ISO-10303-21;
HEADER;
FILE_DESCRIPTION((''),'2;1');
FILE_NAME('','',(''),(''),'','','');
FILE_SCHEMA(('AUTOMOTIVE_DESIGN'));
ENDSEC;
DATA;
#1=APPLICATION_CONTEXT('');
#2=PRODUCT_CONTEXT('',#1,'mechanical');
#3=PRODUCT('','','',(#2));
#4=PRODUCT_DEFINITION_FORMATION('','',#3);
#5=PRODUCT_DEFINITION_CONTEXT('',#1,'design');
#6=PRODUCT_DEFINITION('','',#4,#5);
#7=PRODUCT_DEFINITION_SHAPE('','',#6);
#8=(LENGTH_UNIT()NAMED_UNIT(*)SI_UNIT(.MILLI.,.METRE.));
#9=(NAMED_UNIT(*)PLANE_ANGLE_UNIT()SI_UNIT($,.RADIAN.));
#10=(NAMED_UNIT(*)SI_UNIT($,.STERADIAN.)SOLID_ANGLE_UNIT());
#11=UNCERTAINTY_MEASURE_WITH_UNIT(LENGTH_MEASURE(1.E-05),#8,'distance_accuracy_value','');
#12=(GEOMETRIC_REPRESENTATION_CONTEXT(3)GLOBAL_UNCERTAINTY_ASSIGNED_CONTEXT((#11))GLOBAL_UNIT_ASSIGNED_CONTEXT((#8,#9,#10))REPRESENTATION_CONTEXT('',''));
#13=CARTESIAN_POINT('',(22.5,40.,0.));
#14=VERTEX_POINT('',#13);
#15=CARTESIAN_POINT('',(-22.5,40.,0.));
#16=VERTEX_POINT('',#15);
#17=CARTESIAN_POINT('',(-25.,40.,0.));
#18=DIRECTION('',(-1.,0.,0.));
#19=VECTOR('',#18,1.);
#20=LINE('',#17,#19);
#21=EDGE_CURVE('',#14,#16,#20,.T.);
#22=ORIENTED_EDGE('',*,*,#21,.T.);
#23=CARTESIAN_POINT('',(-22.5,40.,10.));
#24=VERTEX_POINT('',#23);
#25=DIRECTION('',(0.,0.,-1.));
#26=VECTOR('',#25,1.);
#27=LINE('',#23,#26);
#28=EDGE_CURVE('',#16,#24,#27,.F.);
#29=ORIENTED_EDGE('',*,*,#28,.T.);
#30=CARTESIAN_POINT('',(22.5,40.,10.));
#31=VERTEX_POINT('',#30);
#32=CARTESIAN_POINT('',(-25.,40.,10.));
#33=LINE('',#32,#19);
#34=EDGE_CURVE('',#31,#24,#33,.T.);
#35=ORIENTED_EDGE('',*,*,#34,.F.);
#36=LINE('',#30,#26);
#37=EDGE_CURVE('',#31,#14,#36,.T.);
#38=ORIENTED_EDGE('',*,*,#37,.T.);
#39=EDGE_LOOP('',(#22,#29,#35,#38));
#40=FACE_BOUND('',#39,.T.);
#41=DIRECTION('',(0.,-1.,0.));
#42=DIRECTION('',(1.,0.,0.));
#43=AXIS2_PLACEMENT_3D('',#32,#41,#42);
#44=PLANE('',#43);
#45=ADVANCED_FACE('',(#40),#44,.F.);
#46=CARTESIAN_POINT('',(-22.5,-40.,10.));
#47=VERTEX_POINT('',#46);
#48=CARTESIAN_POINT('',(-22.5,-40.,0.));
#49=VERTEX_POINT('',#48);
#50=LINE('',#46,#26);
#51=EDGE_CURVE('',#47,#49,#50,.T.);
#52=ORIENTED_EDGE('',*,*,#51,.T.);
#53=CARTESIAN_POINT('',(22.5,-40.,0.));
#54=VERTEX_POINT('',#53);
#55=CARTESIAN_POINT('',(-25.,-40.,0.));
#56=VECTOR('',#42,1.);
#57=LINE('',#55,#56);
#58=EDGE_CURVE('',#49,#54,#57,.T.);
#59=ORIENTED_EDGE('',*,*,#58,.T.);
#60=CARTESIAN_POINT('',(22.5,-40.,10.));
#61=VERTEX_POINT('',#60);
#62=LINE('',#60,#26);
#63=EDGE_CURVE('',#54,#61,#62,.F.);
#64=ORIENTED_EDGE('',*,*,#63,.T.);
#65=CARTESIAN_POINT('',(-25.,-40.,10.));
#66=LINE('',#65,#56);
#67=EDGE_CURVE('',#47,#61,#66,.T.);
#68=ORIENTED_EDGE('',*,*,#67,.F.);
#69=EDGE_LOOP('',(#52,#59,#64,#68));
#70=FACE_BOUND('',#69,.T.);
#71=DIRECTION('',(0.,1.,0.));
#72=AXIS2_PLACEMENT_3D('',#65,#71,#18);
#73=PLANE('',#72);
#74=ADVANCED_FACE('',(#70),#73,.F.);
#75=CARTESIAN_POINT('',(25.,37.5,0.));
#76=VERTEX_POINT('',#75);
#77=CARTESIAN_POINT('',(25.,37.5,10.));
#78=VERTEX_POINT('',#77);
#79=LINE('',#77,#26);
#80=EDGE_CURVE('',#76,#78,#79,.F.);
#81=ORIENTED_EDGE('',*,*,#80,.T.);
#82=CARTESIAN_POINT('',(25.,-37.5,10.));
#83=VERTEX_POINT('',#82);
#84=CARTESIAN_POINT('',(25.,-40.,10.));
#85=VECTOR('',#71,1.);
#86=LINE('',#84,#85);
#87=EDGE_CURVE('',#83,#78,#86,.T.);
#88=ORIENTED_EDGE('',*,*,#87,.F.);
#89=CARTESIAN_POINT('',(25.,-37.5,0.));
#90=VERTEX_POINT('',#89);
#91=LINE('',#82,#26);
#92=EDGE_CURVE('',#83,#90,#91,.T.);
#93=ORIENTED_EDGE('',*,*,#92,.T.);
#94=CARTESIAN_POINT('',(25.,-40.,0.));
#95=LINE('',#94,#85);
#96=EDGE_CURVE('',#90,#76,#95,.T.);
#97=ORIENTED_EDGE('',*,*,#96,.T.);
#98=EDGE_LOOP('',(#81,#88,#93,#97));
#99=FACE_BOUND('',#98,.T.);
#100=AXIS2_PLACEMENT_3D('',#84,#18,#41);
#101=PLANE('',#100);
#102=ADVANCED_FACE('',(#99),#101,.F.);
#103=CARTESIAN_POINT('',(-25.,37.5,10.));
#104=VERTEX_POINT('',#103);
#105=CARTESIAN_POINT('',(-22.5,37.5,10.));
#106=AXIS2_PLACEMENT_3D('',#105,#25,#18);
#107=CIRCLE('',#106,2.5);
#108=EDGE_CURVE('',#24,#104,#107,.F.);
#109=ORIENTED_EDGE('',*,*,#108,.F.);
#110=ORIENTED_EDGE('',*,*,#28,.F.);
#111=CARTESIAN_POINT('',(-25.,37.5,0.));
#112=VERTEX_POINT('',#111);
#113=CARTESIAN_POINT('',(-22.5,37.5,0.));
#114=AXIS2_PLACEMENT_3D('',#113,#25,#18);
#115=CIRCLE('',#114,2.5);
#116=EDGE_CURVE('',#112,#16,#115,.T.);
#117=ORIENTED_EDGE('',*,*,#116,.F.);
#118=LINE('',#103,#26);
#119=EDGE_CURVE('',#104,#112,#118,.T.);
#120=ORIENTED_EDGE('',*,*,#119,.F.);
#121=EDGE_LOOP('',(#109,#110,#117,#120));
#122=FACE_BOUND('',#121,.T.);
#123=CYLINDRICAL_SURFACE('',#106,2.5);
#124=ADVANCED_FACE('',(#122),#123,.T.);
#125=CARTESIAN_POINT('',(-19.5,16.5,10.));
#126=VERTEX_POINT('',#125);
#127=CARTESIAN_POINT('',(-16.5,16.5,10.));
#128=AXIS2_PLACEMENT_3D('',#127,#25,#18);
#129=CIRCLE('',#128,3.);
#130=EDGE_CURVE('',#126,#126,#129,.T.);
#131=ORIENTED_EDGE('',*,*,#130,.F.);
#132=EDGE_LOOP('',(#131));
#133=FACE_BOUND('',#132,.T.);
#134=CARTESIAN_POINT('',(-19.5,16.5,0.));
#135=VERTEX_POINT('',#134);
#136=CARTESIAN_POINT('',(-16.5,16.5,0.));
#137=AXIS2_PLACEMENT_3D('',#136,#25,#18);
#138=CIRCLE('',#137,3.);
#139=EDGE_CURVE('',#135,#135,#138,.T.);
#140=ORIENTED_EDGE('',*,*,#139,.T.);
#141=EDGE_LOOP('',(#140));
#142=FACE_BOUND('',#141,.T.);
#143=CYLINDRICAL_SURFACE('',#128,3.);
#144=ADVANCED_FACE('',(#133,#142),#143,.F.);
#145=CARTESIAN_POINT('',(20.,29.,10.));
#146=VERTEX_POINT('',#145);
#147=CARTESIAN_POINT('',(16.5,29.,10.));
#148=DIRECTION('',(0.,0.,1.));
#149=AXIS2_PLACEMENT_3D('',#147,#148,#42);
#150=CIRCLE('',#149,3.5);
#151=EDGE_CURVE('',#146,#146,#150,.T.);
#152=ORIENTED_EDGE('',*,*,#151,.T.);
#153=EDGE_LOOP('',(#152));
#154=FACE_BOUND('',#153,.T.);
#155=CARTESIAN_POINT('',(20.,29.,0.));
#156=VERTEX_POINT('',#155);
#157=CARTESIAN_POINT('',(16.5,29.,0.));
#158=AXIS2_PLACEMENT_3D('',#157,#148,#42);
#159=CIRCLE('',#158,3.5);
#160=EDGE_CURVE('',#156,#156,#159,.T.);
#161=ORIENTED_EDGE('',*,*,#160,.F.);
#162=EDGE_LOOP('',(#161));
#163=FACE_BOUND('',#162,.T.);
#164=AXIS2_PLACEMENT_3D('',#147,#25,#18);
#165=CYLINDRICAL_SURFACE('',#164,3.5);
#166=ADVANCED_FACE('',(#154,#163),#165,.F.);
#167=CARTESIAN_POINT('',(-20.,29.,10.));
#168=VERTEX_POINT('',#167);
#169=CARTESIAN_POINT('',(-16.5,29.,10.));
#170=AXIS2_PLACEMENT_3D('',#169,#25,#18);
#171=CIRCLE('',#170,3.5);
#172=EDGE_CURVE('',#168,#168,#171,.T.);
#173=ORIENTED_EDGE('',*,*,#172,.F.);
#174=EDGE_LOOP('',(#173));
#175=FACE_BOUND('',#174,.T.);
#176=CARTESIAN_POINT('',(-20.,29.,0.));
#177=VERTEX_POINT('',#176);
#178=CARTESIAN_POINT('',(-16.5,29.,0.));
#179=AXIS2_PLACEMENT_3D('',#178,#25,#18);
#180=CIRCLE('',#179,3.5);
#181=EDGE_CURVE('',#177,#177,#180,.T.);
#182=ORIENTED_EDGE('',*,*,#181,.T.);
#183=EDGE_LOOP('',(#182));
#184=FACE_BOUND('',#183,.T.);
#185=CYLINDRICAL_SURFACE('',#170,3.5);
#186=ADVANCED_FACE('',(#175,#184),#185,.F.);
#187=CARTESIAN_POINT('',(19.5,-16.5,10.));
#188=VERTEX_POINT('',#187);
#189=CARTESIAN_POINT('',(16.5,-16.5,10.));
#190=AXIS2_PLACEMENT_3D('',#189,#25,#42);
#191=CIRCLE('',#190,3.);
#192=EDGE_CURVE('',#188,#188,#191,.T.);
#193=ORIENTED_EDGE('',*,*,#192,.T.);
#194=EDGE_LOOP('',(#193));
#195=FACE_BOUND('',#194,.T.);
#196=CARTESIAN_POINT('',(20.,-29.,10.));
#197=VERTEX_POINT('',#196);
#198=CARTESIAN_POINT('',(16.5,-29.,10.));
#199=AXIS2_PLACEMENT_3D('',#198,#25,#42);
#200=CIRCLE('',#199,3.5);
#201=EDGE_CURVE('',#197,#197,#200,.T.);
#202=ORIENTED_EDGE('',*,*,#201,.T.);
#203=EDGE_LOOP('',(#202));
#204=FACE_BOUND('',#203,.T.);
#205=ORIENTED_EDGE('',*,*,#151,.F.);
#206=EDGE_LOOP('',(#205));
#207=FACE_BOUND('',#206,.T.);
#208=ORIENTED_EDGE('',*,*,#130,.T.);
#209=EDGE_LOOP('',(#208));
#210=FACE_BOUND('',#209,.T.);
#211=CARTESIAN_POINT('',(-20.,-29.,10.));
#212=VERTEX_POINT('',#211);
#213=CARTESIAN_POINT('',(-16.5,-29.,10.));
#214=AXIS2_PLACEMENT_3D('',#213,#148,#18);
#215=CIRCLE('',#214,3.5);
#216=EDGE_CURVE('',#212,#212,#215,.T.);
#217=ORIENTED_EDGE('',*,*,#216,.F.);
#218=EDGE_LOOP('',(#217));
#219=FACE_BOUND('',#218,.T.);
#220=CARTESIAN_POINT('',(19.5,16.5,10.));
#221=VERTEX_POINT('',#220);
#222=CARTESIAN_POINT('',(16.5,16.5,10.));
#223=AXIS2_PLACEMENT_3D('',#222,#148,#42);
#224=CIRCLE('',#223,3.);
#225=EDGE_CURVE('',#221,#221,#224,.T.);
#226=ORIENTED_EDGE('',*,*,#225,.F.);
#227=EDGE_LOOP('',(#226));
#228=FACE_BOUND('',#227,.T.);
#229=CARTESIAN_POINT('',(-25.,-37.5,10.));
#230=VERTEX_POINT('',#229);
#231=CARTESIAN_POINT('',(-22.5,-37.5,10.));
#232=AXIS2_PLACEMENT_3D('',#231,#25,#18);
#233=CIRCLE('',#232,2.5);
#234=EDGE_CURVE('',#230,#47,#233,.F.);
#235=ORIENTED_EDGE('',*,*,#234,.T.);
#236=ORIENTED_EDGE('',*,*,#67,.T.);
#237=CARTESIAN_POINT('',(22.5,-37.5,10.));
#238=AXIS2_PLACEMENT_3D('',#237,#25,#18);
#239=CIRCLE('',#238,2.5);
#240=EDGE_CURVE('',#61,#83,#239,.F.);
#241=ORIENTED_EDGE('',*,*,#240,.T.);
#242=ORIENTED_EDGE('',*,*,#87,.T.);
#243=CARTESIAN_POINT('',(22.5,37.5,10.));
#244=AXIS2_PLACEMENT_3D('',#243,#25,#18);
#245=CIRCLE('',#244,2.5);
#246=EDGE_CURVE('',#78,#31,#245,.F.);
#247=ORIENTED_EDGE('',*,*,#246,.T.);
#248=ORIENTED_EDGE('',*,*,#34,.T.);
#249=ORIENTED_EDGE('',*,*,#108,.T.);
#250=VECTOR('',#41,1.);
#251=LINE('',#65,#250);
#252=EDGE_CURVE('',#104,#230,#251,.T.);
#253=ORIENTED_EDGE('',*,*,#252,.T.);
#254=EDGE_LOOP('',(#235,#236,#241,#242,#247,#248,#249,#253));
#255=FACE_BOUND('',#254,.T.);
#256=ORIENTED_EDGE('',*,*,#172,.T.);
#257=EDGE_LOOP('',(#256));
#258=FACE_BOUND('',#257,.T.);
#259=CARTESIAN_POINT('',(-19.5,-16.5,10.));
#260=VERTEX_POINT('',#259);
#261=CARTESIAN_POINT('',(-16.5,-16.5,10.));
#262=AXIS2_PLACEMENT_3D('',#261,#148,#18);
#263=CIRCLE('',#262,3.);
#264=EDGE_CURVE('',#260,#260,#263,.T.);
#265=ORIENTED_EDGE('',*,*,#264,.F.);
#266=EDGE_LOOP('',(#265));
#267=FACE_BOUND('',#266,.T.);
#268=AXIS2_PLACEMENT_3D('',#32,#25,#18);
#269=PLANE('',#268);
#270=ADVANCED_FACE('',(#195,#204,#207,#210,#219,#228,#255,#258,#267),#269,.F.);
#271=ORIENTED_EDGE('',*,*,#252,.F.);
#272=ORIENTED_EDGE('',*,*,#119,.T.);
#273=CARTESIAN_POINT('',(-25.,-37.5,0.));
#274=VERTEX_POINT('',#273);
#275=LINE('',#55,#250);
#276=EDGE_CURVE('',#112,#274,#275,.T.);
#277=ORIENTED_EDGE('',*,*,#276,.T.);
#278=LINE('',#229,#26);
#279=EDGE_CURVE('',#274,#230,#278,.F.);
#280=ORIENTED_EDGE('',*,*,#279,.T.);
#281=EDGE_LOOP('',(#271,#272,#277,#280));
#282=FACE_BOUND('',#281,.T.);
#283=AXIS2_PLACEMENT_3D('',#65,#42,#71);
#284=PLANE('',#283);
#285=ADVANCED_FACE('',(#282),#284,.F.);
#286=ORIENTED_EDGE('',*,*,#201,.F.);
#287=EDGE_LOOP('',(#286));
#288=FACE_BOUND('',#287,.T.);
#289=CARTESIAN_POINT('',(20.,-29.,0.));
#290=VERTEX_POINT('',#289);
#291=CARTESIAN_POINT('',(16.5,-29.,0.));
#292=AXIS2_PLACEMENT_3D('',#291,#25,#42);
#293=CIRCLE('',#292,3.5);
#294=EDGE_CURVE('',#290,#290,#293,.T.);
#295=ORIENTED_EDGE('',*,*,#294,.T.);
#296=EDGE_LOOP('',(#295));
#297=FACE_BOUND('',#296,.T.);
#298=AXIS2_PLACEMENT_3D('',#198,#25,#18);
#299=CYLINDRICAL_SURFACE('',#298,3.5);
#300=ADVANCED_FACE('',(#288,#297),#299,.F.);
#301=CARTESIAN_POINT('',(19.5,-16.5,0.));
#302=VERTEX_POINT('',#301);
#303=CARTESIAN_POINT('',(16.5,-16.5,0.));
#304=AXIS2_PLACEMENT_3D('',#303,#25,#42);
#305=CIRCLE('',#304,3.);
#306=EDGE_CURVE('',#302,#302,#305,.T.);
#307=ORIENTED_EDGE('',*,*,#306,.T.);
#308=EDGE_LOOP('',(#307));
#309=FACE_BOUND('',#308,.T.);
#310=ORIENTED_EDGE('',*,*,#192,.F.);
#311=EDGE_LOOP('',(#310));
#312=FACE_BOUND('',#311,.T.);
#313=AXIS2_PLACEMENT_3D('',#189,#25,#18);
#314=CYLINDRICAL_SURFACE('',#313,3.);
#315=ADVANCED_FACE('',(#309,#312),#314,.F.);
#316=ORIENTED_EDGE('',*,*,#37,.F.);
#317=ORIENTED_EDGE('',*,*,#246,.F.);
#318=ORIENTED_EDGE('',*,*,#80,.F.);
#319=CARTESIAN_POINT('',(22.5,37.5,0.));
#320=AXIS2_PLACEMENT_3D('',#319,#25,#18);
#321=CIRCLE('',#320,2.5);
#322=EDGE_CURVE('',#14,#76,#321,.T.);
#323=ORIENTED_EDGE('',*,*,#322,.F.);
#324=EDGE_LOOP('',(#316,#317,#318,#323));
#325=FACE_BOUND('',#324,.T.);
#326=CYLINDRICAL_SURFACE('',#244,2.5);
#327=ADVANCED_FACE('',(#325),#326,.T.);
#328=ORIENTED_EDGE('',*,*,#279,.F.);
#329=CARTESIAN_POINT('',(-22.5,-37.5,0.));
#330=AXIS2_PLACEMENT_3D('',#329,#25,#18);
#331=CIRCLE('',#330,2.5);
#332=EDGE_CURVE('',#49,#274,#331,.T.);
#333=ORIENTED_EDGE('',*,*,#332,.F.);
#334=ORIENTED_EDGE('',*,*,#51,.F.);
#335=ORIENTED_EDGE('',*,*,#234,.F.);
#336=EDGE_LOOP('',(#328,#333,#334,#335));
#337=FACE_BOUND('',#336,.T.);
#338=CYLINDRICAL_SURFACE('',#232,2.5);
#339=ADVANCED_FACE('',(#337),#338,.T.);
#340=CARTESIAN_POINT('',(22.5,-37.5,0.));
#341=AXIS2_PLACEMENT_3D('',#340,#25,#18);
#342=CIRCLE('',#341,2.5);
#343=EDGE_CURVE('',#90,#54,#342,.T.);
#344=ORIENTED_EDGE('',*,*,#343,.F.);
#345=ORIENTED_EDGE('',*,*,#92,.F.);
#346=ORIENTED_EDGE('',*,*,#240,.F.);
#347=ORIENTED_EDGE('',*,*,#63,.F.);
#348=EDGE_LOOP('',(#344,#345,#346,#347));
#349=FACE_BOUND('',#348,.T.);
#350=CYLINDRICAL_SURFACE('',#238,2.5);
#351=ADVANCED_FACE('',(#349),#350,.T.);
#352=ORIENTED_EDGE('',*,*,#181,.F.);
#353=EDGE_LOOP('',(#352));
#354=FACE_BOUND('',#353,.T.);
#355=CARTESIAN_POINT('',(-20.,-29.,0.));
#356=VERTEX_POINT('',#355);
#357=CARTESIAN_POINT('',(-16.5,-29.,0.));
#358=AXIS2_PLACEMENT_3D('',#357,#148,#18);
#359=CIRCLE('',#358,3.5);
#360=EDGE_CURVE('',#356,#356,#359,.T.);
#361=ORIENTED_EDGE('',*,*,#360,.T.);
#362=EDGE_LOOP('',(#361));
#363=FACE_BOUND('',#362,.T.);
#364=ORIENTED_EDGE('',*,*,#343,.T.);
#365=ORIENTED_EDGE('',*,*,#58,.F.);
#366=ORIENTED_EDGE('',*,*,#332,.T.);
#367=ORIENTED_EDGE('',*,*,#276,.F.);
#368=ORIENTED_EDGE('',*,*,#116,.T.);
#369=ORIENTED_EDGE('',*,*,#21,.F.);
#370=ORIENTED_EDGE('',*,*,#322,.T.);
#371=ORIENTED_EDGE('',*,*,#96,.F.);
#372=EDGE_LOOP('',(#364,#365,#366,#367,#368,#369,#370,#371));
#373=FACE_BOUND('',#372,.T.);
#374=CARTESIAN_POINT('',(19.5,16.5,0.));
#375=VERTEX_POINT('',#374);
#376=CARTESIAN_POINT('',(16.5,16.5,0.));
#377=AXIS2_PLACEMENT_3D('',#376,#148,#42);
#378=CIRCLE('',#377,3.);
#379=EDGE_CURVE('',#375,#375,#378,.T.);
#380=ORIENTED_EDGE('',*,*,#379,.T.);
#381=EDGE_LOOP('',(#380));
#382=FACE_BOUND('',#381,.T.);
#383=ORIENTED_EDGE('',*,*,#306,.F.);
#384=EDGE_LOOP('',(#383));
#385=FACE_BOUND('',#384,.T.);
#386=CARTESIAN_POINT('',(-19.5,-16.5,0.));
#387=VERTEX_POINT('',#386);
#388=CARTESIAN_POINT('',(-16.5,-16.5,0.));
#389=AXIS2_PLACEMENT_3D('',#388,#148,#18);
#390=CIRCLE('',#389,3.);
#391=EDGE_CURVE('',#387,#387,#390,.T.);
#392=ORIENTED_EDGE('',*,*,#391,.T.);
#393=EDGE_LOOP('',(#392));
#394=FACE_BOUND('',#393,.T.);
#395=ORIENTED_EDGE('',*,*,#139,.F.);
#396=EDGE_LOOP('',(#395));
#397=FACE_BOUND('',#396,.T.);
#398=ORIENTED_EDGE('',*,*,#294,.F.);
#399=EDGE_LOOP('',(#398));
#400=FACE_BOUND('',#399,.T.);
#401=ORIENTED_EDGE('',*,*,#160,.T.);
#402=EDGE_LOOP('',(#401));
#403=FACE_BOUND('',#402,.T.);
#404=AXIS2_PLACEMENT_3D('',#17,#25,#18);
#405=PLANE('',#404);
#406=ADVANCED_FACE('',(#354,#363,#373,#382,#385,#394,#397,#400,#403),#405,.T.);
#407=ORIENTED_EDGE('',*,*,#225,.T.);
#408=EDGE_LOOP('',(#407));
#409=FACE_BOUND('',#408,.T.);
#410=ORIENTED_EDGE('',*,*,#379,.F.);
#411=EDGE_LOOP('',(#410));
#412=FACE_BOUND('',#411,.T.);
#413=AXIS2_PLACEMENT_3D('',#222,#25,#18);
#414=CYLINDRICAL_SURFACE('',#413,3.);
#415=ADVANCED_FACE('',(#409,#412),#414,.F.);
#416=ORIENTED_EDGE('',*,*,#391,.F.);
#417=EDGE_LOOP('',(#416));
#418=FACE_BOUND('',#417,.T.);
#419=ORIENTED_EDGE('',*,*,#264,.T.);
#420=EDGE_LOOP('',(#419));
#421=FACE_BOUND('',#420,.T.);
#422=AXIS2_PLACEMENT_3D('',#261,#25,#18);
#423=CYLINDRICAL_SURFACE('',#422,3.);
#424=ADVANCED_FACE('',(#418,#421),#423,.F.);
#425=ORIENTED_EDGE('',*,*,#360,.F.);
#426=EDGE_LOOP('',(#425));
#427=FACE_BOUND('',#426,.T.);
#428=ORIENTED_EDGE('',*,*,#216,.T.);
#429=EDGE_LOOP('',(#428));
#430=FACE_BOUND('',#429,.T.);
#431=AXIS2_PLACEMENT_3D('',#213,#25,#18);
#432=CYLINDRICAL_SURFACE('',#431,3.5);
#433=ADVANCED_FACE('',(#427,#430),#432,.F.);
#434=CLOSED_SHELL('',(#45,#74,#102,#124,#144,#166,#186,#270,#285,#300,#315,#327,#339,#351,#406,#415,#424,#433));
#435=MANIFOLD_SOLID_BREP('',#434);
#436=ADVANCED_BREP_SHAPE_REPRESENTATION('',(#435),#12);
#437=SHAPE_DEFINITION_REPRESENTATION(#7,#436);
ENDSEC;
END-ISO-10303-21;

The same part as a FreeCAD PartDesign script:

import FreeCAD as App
import Part
import Sketcher


def edges_at(feature, points):
    """Names of the edges that pass closest to the given points."""
    edges = feature.Shape.Edges
    near = lambda p: min(range(len(edges)), key=lambda i: edges[i].distToShape(Part.Vertex(*p))[0])
    return sorted({f"Edge{near(p) + 1}" for p in points})

doc = App.newDocument("Part")
params = doc.addObject("Spreadsheet::Sheet", "Params")
for row, (alias, value) in enumerate([
    ("sketch1_width", "50 mm"),
    ("sketch1_height", "80 mm"),
    ("pad1_length", "10 mm"),
    ("sketch2_diameter", "7 mm"),
    ("sketch2_diameter2", "6 mm"),
    ("sketch3_diameter", "7 mm"),
    ("sketch3_diameter2", "6 mm"),
    ("fillet_radius", "2.5 mm"),
], start=1):
    params.set(f"A{row}", alias)
    params.set(f"B{row}", "=" + value)
    params.setAlias(f"B{row}", alias)

body = doc.addObject("PartDesign::Body", "Body")

# Sketch on XY plane
sketch1 = body.newObject("Sketcher::SketchObject", "Sketch")
sketch1.AttachmentSupport = (doc.getObject("XY_Plane"), [""])
sketch1.MapMode = "FlatFace"
sketch1.addGeometry(Part.LineSegment(App.Vector(-25, 40, 0), App.Vector(-25, -40, 0)), False)
sketch1.addGeometry(Part.LineSegment(App.Vector(-25, -40, 0), App.Vector(25, -40, 0)), False)
sketch1.addGeometry(Part.LineSegment(App.Vector(25, -40, 0), App.Vector(25, 40, 0)), False)
sketch1.addGeometry(Part.LineSegment(App.Vector(25, 40, 0), App.Vector(-25, 40, 0)), False)
sketch1.addConstraint(Sketcher.Constraint("Coincident", 0, 2, 1, 1))
sketch1.addConstraint(Sketcher.Constraint("Coincident", 1, 2, 2, 1))
sketch1.addConstraint(Sketcher.Constraint("Coincident", 2, 2, 3, 1))
sketch1.addConstraint(Sketcher.Constraint("Coincident", 3, 2, 0, 1))
sketch1.addConstraint(Sketcher.Constraint("Vertical", 0))
sketch1.addConstraint(Sketcher.Constraint("Horizontal", 1))
sketch1.addConstraint(Sketcher.Constraint("Vertical", 2))
sketch1.addConstraint(Sketcher.Constraint("Horizontal", 3))
sketch1.addConstraint(Sketcher.Constraint("Symmetric", 0, 2, 2, 2, -1, 1))
sketch1.addConstraint(Sketcher.Constraint("DistanceX", 1, 1, 1, 2, 50.0))
sketch1.addConstraint(Sketcher.Constraint("DistanceY", 0, 2, 0, 1, 80.0))
sketch1.setExpression("Constraints[9]", "Params.sketch1_width")
sketch1.setExpression("Constraints[10]", "Params.sketch1_height")
pad1 = body.newObject("PartDesign::Pad", "Pad")
pad1.Profile = sketch1
pad1.setExpression("Length", "Params.pad1_length")

# Sketch on XY plane
sketch2 = body.newObject("Sketcher::SketchObject", "Sketch001")
sketch2.AttachmentSupport = (doc.getObject("XY_Plane"), [""])
sketch2.MapMode = "FlatFace"
sketch2.addGeometry(Part.Circle(App.Vector(-16.5, 29, 0), App.Vector(0, 0, 1), 3.5), False)
sketch2.addGeometry(Part.Circle(App.Vector(-16.5, 16.5, 0), App.Vector(0, 0, 1), 3), False)
sketch2.addConstraint(Sketcher.Constraint("Vertical", 0, 3, 1, 3))
sketch2.addConstraint(Sketcher.Constraint("Diameter", 0, 7.0))
sketch2.addConstraint(Sketcher.Constraint("Diameter", 1, 6.0))
sketch2.addConstraint(Sketcher.Constraint("DistanceY", -1, 1, 0, 3, 29.0))
sketch2.addConstraint(Sketcher.Constraint("DistanceX", 0, 3, -1, 1, 16.5))
sketch2.addConstraint(Sketcher.Constraint("DistanceY", -1, 1, 1, 3, 16.5))
sketch2.setExpression("Constraints[1]", "Params.sketch2_diameter")
sketch2.setExpression("Constraints[2]", "Params.sketch2_diameter2")
pocket1 = body.newObject("PartDesign::Pocket", "Pocket")
pocket1.Profile = sketch2
pocket1.Type = "ThroughAll"
pocket1.Reversed = True
doc.recompute()

mirrored = body.newObject("PartDesign::Mirrored", "Mirrored")
mirrored.Originals = [pocket1]
mirrored.MirrorPlane = (doc.getObject("YZ_Plane"), [""])
body.Tip = mirrored
doc.recompute()

mirrored2 = body.newObject("PartDesign::Mirrored", "Mirrored001")
mirrored2.Originals = [pocket1]
mirrored2.MirrorPlane = (doc.getObject("XZ_Plane"), [""])
body.Tip = mirrored2

# Sketch on XY plane
sketch3 = body.newObject("Sketcher::SketchObject", "Sketch002")
sketch3.AttachmentSupport = (doc.getObject("XY_Plane"), [""])
sketch3.MapMode = "FlatFace"
sketch3.addGeometry(Part.Circle(App.Vector(16.5, -29, 0), App.Vector(0, 0, 1), 3.5), False)
sketch3.addGeometry(Part.Circle(App.Vector(16.5, -16.5, 0), App.Vector(0, 0, 1), 3), False)
sketch3.addConstraint(Sketcher.Constraint("Vertical", 0, 3, 1, 3))
sketch3.addConstraint(Sketcher.Constraint("Diameter", 0, 7.0))
sketch3.addConstraint(Sketcher.Constraint("Diameter", 1, 6.0))
sketch3.addConstraint(Sketcher.Constraint("DistanceY", 0, 3, -1, 1, 29.0))
sketch3.addConstraint(Sketcher.Constraint("DistanceX", -1, 1, 0, 3, 16.5))
sketch3.addConstraint(Sketcher.Constraint("DistanceY", 1, 3, -1, 1, 16.5))
sketch3.setExpression("Constraints[1]", "Params.sketch3_diameter")
sketch3.setExpression("Constraints[2]", "Params.sketch3_diameter2")
pocket2 = body.newObject("PartDesign::Pocket", "Pocket001")
pocket2.Profile = sketch3
pocket2.Type = "ThroughAll"
pocket2.Reversed = True
doc.recompute()

fillet = body.newObject("PartDesign::Fillet", "Fillet")
fillet.Base = (pocket2, edges_at(pocket2, [
    (-25, 40, 5),
    (25, 40, 5),
    (25, -40, 5),
    (-25, -40, 5),
]))
fillet.setExpression("Radius", "Params.fillet_radius")

doc.recompute()
